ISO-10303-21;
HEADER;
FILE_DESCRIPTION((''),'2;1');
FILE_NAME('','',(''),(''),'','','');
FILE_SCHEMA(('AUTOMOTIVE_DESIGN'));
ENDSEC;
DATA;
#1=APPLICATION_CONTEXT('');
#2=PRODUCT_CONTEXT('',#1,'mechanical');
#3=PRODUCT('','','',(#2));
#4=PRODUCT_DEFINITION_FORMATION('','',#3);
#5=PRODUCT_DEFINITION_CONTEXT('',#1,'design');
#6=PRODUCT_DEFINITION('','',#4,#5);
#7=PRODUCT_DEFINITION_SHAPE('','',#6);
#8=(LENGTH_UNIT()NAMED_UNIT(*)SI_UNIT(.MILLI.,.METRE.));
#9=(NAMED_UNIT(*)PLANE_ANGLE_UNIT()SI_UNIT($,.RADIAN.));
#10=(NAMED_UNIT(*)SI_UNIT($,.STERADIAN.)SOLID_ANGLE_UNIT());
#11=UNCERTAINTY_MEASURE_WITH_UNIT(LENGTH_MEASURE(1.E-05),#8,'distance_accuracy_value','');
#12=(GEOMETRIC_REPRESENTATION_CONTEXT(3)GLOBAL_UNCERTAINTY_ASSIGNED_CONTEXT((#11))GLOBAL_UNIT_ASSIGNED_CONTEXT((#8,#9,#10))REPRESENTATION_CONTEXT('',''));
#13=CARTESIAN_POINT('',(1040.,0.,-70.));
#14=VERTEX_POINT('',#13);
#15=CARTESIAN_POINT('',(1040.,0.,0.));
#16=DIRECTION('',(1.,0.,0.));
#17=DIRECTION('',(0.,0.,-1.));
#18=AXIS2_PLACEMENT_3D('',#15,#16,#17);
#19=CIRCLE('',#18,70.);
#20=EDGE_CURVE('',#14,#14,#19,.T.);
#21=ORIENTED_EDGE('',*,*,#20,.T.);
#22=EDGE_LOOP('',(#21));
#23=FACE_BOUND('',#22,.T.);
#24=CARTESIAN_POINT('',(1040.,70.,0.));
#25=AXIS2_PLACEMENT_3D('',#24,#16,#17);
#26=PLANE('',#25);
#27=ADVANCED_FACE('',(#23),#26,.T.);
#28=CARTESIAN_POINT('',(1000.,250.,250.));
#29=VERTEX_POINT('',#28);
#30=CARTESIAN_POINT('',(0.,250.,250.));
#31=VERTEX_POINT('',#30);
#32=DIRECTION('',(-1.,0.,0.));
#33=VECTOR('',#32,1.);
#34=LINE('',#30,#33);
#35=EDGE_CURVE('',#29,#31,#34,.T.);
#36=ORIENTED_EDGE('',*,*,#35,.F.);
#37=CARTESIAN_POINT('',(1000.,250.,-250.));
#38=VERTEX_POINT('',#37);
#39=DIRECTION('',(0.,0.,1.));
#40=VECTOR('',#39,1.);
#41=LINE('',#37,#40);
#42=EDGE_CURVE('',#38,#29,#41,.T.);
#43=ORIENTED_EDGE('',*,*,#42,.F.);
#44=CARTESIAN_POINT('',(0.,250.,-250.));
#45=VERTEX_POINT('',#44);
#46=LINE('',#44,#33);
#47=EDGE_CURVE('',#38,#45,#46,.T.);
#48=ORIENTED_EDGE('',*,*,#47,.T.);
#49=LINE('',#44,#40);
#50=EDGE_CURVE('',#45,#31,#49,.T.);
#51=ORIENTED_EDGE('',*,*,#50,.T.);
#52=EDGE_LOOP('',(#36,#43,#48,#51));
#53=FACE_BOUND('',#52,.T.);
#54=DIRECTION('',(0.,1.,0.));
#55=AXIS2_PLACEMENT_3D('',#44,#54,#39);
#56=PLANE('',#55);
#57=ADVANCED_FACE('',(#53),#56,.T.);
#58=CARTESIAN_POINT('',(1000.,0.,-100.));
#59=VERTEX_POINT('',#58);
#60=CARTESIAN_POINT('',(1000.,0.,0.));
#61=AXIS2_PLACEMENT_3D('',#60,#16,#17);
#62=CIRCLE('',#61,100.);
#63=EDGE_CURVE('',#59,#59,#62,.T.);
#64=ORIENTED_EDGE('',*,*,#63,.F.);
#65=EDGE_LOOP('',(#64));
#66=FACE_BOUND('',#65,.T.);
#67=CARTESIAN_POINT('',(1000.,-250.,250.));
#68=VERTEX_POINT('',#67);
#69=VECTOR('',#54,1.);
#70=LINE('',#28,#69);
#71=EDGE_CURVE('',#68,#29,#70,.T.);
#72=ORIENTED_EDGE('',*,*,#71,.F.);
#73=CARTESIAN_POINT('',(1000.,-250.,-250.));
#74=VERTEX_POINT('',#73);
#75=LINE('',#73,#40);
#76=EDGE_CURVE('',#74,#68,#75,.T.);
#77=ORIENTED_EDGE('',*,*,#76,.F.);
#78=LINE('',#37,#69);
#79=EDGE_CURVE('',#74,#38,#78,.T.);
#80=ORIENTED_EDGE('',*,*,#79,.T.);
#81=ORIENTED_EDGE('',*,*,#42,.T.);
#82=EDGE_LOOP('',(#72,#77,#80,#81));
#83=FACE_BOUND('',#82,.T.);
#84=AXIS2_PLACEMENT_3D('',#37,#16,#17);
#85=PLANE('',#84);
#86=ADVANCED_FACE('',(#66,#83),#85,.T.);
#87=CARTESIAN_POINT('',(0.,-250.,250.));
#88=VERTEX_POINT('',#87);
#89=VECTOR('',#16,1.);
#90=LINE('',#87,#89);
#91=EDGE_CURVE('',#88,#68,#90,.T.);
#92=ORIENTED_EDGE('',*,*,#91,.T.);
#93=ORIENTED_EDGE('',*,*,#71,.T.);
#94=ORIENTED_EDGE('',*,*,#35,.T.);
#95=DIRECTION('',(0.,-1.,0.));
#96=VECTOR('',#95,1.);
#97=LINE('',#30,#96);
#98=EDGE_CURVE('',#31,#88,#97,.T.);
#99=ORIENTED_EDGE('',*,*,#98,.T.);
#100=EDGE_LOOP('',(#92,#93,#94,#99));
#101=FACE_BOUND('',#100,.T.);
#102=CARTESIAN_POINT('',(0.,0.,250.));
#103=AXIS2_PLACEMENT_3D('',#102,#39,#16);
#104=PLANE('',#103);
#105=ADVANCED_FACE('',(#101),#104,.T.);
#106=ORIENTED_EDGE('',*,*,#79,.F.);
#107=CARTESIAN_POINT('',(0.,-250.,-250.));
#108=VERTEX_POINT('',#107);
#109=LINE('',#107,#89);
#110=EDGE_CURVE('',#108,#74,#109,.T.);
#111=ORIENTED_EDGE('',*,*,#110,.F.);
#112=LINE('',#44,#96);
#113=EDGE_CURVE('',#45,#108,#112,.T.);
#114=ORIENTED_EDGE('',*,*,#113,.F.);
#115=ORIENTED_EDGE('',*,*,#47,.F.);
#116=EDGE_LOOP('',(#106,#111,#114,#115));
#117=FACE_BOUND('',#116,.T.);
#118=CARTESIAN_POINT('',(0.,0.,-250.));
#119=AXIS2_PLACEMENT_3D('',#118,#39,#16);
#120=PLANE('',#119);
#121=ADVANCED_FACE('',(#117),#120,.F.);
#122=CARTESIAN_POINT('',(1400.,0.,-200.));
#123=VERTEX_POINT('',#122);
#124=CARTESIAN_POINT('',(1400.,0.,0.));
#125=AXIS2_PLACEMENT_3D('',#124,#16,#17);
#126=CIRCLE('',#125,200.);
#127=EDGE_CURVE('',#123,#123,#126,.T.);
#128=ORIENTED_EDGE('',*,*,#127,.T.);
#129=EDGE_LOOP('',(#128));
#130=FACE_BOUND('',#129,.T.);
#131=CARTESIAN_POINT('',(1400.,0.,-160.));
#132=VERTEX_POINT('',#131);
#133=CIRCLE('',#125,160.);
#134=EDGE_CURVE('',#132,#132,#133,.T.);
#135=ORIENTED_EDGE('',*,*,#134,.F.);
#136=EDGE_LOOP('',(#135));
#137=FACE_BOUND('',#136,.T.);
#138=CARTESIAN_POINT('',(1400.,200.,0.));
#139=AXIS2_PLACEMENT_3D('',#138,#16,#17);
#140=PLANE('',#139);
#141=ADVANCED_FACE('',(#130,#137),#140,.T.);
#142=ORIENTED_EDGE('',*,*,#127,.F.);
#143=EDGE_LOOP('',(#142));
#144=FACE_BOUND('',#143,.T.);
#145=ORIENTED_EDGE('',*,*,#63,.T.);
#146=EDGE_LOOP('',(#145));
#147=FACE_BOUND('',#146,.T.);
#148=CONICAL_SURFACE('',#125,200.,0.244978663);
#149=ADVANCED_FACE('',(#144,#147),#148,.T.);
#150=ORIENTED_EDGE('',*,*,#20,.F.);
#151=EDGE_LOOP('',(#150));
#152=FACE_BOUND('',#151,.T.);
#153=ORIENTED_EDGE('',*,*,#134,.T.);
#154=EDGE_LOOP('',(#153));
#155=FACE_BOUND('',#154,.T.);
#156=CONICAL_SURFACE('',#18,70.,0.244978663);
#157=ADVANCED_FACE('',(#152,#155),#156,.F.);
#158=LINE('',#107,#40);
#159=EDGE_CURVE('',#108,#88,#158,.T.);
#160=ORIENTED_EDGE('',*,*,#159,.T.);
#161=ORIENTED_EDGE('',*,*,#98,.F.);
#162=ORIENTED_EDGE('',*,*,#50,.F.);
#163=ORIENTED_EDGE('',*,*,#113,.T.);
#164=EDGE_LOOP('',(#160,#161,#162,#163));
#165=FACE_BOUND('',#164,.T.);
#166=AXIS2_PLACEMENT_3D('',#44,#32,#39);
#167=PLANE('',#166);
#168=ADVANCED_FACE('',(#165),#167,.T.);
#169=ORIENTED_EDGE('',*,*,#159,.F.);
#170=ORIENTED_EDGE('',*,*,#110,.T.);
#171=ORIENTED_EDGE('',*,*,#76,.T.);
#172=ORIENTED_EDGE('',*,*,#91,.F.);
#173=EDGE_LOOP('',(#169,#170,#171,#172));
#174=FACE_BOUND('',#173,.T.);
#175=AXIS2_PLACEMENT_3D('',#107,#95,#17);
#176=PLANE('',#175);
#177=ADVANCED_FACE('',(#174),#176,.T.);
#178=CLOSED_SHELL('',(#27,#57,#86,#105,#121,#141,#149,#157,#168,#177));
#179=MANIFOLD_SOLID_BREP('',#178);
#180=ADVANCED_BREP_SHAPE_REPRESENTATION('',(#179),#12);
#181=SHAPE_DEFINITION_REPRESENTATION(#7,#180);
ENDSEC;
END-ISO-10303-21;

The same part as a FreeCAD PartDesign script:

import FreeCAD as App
import Part
import Sketcher

V = App.Vector
Q = App.Units.Quantity

doc = App.newDocument("Part")
body = doc.addObject("PartDesign::Body", "Body")

# Sketch on XY plane
sketch1 = doc.addObject("Sketcher::SketchObject", "Sketch")
body.addObject(sketch1)
sketch1.AttachmentSupport = (doc.XY_Plane, [""])
sketch1.MapMode = "FlatFace"
sketch1.addGeometry(Part.LineSegment(V(0, 250, 0), V(0, -250, 0)), False)
sketch1.addGeometry(Part.LineSegment(V(0, -250, 0), V(1000, -250, 0)), False)
sketch1.addGeometry(Part.LineSegment(V(1000, -250, 0), V(1000, 250, 0)), False)
sketch1.addGeometry(Part.LineSegment(V(1000, 250, 0), V(0, 250, 0)), False)
sketch1.addConstraint(Sketcher.Constraint("Coincident", 0, 2, 1, 1))
sketch1.addConstraint(Sketcher.Constraint("Coincident", 1, 2, 2, 1))
sketch1.addConstraint(Sketcher.Constraint("Coincident", 2, 2, 3, 1))
sketch1.addConstraint(Sketcher.Constraint("Coincident", 3, 2, 0, 1))
sketch1.addConstraint(Sketcher.Constraint("Vertical", 0))
sketch1.addConstraint(Sketcher.Constraint("Horizontal", 1))
sketch1.addConstraint(Sketcher.Constraint("Vertical", 2))
sketch1.addConstraint(Sketcher.Constraint("Horizontal", 3))
sketch1.addConstraint(Sketcher.Constraint("Symmetric", 0, 2, 3, 2, -1, 1))
sketch1.addConstraint(Sketcher.Constraint("DistanceX", 1, 1, 1, 2, Q("1000 mm")))
sketch1.addConstraint(Sketcher.Constraint("DistanceY", 0, 2, 0, 1, Q("500 mm")))
pad1 = doc.addObject("PartDesign::Pad", "Pad")
body.addObject(pad1)
pad1.Profile = sketch1
pad1.Type = "TwoLengths"
pad1.Length = 250
pad1.Length2 = 250

# Sketch on XY plane
sketch2 = doc.addObject("Sketcher::SketchObject", "Sketch001")
body.addObject(sketch2)
sketch2.AttachmentSupport = (doc.XY_Plane, [""])
sketch2.MapMode = "FlatFace"
sketch2.addGeometry(Part.LineSegment(V(1000, 100, 0), V(1000, 0, 0)), False)
sketch2.addGeometry(Part.LineSegment(V(1000, 0, 0), V(1040, 0, 0)), False)
sketch2.addGeometry(Part.LineSegment(V(1040, 0, 0), V(1040, 70, 0)), False)
sketch2.addGeometry(Part.LineSegment(V(1040, 70, 0), V(1400, 160, 0)), False)
sketch2.addGeometry(Part.LineSegment(V(1400, 160, 0), V(1400, 200, 0)), False)
sketch2.addGeometry(Part.LineSegment(V(1400, 200, 0), V(1000, 100, 0)), False)
sketch2.addConstraint(Sketcher.Constraint("Coincident", 0, 2, 1, 1))
sketch2.addConstraint(Sketcher.Constraint("Coincident", 1, 2, 2, 1))
sketch2.addConstraint(Sketcher.Constraint("Coincident", 2, 2, 3, 1))
sketch2.addConstraint(Sketcher.Constraint("Coincident", 3, 2, 4, 1))
sketch2.addConstraint(Sketcher.Constraint("Coincident", 4, 2, 5, 1))
sketch2.addConstraint(Sketcher.Constraint("Coincident", 5, 2, 0, 1))
sketch2.addConstraint(Sketcher.Constraint("Vertical", 0))
sketch2.addConstraint(Sketcher.Constraint("Horizontal", 1))
sketch2.addConstraint(Sketcher.Constraint("Vertical", 2))
sketch2.addConstraint(Sketcher.Constraint("Vertical", 4))
sketch2.addConstraint(Sketcher.Constraint("PointOnObject", 0, 2, -1))
sketch2.addConstraint(Sketcher.Constraint("Parallel", 3, 5))
sketch2.addConstraint(Sketcher.Constraint("Equal", 1, 4))
sketch2.addConstraint(Sketcher.Constraint("DistanceX", 1, 1, 1, 2, Q("40 mm")))
sketch2.addConstraint(Sketcher.Constraint("DistanceY", 0, 2, 0, 1, Q("100 mm")))
sketch2.addConstraint(Sketcher.Constraint("DistanceY", 2, 1, 2, 2, Q("70 mm")))
sketch2.addConstraint(Sketcher.Constraint("DistanceX", -1, 1, 0, 2, Q("1000 mm")))
sketch2.addConstraint(Sketcher.Constraint("DistanceX", -1, 1, 3, 2, Q("1400 mm")))
revolution = doc.addObject("PartDesign::Revolution", "Revolution")
body.addObject(revolution)
revolution.Profile = sketch2
revolution.ReferenceAxis = (sketch2, ["H_Axis"])
revolution.Angle = 360

doc.recompute()
